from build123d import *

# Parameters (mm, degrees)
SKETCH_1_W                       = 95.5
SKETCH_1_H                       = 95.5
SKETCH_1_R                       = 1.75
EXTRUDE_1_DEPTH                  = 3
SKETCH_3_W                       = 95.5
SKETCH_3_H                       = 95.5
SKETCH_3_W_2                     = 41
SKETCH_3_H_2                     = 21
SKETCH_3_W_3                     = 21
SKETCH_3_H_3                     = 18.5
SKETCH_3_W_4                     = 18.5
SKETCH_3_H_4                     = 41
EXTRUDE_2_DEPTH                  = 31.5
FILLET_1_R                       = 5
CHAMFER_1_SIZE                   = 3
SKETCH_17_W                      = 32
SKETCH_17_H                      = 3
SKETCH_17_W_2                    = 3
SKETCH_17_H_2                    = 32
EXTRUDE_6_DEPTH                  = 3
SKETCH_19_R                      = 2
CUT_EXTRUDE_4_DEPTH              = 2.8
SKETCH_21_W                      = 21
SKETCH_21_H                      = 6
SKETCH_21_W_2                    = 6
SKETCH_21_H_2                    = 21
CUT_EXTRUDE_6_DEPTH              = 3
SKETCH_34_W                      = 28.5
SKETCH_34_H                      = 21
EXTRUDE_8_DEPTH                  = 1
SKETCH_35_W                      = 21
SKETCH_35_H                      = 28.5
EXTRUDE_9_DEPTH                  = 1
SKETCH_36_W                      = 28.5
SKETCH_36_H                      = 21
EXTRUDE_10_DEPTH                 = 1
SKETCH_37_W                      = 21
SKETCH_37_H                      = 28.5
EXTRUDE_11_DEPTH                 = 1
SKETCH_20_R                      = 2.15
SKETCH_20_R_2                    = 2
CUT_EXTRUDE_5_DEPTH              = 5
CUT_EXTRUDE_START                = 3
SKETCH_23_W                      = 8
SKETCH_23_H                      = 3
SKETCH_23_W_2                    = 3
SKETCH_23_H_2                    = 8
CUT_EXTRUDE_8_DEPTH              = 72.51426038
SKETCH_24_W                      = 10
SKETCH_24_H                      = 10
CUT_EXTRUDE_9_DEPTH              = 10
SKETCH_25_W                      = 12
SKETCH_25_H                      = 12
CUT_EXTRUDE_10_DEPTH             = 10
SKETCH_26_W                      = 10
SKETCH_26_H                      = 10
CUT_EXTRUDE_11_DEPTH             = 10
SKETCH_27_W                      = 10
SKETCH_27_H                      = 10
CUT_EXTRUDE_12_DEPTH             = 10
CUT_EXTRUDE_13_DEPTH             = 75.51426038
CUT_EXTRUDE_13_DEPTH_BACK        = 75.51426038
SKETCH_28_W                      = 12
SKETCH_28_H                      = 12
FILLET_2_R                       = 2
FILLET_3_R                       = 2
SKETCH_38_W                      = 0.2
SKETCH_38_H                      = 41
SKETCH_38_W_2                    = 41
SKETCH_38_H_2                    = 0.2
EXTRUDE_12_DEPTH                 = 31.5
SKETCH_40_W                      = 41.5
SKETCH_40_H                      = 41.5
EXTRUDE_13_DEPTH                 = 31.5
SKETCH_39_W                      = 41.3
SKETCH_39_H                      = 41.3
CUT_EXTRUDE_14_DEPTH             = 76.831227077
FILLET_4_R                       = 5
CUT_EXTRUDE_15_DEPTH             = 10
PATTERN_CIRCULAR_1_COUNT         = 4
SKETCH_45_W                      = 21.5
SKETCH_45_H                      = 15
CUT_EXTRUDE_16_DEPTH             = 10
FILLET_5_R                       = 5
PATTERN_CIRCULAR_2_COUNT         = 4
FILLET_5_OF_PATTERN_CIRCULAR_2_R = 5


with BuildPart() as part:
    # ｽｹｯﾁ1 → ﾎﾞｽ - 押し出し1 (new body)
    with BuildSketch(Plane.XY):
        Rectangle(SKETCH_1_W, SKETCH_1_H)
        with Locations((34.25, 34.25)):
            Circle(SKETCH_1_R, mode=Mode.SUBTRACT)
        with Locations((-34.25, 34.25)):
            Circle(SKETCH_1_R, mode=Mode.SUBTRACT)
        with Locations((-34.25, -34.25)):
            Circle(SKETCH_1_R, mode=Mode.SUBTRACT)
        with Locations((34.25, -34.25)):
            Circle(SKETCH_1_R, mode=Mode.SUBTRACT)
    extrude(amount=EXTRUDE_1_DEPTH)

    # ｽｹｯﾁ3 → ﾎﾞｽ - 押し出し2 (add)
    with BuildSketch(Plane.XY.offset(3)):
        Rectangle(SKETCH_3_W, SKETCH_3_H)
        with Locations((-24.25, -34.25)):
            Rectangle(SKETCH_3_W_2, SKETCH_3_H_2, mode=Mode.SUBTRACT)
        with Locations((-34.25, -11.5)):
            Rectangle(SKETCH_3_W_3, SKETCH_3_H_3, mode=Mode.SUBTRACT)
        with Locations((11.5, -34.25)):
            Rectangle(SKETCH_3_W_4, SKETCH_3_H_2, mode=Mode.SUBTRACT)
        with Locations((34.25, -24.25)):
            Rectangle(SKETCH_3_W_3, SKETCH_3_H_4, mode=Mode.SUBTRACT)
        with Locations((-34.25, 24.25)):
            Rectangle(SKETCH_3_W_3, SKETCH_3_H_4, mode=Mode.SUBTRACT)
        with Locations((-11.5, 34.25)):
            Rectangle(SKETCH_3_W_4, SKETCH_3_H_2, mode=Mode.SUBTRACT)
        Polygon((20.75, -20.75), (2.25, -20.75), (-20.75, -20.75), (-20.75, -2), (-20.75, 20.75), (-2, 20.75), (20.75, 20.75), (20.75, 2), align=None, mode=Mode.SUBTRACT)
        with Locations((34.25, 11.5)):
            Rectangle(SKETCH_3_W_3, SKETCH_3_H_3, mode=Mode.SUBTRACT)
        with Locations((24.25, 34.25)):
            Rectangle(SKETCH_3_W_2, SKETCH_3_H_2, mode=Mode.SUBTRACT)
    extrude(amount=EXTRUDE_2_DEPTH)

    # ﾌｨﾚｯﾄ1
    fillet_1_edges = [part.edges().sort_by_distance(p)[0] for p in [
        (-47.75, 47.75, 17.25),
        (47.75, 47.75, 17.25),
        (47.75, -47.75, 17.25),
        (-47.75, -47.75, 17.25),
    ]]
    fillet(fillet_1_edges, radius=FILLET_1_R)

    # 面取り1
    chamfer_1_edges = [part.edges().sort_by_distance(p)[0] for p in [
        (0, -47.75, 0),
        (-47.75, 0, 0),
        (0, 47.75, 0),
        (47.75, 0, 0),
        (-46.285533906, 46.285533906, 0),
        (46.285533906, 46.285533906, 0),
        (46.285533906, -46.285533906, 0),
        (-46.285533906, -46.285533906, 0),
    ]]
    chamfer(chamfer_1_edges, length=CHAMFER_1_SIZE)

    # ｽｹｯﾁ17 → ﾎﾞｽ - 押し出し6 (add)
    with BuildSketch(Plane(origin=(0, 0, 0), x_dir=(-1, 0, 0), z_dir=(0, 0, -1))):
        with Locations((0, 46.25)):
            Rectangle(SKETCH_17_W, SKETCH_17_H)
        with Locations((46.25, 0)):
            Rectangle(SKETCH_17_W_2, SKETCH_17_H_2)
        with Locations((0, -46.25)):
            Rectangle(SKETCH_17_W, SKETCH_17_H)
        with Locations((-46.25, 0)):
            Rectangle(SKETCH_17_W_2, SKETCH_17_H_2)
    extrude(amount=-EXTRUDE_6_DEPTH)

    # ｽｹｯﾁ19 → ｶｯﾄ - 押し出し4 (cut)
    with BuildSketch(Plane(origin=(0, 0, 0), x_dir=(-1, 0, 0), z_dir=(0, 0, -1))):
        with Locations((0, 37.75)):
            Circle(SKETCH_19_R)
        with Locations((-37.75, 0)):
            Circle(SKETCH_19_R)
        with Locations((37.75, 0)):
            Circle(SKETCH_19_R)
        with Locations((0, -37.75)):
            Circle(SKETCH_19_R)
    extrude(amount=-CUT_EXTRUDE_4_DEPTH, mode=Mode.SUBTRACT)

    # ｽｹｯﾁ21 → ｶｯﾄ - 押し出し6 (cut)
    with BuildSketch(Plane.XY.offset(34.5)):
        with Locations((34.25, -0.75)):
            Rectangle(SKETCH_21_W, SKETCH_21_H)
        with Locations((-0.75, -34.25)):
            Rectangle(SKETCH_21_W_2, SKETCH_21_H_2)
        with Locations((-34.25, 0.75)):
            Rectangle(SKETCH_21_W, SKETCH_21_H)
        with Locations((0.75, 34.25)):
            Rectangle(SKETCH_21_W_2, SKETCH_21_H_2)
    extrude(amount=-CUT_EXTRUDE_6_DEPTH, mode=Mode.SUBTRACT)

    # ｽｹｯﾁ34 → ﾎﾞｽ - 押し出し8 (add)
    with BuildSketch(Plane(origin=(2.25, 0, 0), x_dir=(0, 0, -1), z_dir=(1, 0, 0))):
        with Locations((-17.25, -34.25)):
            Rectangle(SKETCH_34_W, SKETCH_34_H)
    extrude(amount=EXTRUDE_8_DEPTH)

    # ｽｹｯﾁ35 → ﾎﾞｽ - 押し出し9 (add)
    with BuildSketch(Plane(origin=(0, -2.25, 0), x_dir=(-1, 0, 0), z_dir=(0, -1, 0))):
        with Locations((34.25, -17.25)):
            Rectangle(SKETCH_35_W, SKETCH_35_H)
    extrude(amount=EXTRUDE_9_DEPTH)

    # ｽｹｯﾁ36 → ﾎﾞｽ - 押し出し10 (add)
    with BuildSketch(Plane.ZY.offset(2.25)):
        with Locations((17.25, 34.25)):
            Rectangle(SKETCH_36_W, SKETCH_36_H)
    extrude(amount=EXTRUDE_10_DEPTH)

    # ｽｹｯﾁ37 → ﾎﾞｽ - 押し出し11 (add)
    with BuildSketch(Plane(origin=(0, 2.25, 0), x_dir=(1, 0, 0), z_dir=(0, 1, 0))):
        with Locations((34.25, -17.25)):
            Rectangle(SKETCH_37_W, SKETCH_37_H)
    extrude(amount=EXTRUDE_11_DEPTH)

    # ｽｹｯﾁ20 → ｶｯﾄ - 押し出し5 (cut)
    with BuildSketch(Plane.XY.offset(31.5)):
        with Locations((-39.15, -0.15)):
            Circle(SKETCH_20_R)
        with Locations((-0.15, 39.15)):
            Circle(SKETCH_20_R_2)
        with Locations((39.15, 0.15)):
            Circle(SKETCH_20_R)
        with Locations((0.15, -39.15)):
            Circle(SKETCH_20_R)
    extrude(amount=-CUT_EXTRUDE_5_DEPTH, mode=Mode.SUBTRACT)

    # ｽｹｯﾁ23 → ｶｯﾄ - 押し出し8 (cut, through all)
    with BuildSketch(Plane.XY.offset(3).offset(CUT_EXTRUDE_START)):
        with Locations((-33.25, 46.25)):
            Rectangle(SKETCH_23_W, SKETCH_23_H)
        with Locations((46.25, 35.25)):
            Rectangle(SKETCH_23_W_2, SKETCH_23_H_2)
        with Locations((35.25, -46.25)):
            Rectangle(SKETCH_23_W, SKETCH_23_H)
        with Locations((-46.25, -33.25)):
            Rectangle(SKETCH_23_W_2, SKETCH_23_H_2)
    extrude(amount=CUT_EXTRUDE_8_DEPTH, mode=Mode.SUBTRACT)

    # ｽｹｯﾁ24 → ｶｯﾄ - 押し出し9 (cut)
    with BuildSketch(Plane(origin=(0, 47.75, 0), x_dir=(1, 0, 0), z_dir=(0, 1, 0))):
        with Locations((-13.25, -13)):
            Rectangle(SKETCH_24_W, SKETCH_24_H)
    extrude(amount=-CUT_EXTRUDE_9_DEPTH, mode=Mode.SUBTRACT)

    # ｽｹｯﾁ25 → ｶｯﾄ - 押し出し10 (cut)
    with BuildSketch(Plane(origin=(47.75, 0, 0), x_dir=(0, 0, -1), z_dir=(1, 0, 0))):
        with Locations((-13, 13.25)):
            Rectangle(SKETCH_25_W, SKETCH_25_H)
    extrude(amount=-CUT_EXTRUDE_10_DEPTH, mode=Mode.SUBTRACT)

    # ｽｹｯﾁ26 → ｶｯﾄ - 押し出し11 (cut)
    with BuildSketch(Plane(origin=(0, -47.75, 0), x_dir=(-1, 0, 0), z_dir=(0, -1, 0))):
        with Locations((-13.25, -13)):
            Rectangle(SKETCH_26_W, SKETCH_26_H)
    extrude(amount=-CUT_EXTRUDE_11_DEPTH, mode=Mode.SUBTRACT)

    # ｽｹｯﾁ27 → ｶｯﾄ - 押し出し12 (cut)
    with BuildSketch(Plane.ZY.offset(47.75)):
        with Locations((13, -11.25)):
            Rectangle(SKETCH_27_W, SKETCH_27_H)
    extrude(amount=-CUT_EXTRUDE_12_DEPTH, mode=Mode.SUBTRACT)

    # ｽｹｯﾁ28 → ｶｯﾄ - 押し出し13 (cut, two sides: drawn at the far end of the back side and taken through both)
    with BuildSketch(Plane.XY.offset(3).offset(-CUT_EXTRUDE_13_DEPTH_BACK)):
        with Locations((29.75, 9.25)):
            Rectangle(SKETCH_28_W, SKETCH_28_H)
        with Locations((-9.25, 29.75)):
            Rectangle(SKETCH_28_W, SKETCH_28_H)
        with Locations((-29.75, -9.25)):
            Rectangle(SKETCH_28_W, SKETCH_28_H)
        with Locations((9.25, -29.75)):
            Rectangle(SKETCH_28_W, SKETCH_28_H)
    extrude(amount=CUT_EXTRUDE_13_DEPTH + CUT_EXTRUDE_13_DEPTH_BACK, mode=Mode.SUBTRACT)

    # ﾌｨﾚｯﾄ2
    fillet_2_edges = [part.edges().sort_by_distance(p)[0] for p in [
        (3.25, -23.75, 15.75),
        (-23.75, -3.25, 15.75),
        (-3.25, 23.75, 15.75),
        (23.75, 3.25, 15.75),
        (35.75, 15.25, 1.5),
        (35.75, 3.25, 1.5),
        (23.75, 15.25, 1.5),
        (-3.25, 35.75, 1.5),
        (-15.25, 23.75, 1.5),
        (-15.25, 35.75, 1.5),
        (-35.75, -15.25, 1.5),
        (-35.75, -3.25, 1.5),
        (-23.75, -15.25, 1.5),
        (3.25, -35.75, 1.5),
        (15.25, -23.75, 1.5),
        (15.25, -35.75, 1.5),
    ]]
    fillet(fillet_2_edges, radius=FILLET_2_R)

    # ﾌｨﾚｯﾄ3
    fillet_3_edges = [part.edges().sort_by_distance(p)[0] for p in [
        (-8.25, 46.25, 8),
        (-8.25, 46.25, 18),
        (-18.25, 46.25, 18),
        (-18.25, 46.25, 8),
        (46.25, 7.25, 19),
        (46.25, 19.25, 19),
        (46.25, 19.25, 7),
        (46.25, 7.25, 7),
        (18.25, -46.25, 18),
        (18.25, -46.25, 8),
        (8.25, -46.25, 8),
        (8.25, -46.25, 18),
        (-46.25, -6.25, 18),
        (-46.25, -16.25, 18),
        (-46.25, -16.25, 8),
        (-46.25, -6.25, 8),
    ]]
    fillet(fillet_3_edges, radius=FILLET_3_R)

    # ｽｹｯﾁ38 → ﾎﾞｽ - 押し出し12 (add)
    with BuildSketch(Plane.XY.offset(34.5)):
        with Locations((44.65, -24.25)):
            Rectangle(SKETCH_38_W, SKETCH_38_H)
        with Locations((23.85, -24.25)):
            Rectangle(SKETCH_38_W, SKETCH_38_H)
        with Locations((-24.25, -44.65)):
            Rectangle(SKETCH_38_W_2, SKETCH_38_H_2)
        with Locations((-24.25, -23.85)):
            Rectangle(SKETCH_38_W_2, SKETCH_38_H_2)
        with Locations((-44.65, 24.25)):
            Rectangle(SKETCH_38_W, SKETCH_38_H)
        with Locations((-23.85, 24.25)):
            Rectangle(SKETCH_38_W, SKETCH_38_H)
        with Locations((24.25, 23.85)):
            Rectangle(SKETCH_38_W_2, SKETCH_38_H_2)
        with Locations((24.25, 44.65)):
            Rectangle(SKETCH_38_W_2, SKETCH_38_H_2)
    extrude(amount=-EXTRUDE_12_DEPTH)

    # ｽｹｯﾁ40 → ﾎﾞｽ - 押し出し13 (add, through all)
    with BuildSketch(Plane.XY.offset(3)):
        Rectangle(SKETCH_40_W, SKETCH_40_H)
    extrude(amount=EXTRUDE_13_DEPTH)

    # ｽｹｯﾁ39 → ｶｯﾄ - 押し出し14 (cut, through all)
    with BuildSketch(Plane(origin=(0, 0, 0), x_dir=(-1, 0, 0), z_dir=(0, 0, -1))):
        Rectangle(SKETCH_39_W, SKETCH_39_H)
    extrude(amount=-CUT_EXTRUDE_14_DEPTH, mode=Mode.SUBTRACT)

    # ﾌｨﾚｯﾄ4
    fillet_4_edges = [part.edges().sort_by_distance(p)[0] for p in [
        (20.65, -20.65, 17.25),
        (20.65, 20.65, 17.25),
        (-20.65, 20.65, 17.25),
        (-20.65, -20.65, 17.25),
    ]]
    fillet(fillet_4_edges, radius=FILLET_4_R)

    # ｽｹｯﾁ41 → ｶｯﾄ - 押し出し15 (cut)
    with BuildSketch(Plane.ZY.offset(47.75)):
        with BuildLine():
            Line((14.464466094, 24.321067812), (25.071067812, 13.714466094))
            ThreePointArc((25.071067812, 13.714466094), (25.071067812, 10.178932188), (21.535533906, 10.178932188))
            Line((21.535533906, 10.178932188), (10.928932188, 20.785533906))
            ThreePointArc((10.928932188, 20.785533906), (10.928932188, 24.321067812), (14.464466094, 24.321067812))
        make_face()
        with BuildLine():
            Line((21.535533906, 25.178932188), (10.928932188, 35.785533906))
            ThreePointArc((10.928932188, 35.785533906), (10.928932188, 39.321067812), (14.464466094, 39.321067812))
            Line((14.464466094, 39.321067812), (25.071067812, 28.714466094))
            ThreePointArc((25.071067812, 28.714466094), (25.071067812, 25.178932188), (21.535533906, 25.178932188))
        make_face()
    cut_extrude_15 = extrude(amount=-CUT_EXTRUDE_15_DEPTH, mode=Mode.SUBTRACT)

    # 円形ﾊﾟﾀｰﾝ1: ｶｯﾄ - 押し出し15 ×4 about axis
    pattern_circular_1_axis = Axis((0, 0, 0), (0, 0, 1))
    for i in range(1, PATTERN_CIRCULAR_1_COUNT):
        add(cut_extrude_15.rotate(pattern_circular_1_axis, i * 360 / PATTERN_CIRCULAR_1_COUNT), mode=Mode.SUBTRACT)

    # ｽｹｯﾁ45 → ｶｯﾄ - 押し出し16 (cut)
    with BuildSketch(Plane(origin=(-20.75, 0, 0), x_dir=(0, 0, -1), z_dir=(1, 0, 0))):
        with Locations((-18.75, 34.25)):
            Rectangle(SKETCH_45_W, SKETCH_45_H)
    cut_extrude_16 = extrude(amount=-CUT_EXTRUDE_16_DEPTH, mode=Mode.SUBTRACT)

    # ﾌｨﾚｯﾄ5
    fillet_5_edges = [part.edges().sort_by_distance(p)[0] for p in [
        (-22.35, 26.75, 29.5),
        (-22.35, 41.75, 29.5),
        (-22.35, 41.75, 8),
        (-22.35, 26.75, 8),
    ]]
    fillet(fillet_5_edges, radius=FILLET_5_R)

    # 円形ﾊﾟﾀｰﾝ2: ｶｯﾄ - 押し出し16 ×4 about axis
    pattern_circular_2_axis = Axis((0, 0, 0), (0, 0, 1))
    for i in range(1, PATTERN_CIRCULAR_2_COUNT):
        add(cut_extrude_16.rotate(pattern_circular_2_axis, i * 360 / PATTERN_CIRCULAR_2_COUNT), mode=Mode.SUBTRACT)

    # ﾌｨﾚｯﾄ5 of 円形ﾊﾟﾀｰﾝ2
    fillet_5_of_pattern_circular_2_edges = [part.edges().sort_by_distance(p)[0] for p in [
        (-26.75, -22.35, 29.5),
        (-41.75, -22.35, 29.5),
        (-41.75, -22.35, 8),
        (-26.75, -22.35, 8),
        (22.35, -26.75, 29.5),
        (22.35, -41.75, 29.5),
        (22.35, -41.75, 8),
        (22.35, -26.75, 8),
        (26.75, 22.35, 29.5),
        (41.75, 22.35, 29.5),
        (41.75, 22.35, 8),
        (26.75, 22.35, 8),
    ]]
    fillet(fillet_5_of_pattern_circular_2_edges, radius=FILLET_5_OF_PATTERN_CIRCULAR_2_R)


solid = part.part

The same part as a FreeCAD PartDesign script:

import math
import FreeCAD as App
import Part
import Sketcher

V = App.Vector
Q = App.Units.Quantity


def edges_at(feature, points):
    """Names of the edges that pass closest to the given points."""
    edges = feature.Shape.Edges
    near = lambda p: min(range(len(edges)), key=lambda i: edges[i].distToShape(Part.Vertex(*p))[0])
    return sorted({f"Edge{near(p) + 1}" for p in points})


def add_polygon(sketch, points):
    """Adds a closed chain of lines whose ends are joined by coincident constraints."""
    first, n = sketch.GeometryCount, len(points)
    for a, b in zip(points, points[1:] + points[:1]):
        sketch.addGeometry(Part.LineSegment(App.Vector(*a, 0), App.Vector(*b, 0)), False)
    for i in range(n):
        sketch.addConstraint(Sketcher.Constraint("Coincident", first + i, 2, first + (i + 1) % n, 1))

doc = App.newDocument("Part")
body = doc.addObject("PartDesign::Body", "Body")

sketch1 = body.newObject("Sketcher::SketchObject", "Sketch")
sketch1.AttachmentSupport = (doc.getObject("XY_Plane"), [""])
sketch1.MapMode = "FlatFace"
add_polygon(sketch1, [(-47.8, 47.8), (-47.8, -47.8), (47.8, -47.8), (47.8, 47.8)])
sketch1.addGeometry(Part.Circle(V(-34.2, -34.2, 0), V(0, 0, 1), 1.8), False)
sketch1.addGeometry(Part.Circle(V(34.2, -34.2, 0), V(0, 0, 1), 1.8), False)
sketch1.addGeometry(Part.Circle(V(-34.2, 34.2, 0), V(0, 0, 1), 1.8), False)
sketch1.addGeometry(Part.Circle(V(34.2, 34.2, 0), V(0, 0, 1), 1.8), False)
sketch1.addConstraint([
    Sketcher.Constraint("Vertical", 0),
    Sketcher.Constraint("Horizontal", 1),
    Sketcher.Constraint("Vertical", 2),
    Sketcher.Constraint("Horizontal", 3),
    Sketcher.Constraint("Equal", 4, 5),
    Sketcher.Constraint("Equal", 5, 6),
    Sketcher.Constraint("Equal", 6, 7),
    Sketcher.Constraint("Symmetric", 5, 3, 6, 3, -1, 1),
    Sketcher.Constraint("Symmetric", 4, 3, 7, 3, -1, 1),
    Sketcher.Constraint("Symmetric", 0, 2, 2, 2, -1, 1),
    Sketcher.Constraint("Symmetric", 4, 3, 5, 3, -2),
    Sketcher.Constraint("Equal", 3, 0),
    Sketcher.Constraint("Diameter", 4, 3.5),
    Sketcher.Constraint("DistanceX", 1, 1, 1, 2, 95.5),
    Sketcher.Constraint("DistanceX", 0, 2, 5, 3, 82.0),
    Sketcher.Constraint("DistanceY", 0, 2, 6, 3, 82.0),
])
pad1 = body.newObject("PartDesign::Pad", "Pad")
pad1.Profile = sketch1
pad1.Length = 3

sketch2 = body.newObject("Sketcher::SketchObject", "Sketch001")
sketch2.AttachmentSupport = (doc.getObject("XY_Plane"), [""])
sketch2.MapMode = "FlatFace"
sketch2.AttachmentOffset = App.Placement(V(0, 0, 3), App.Rotation())
add_polygon(sketch2, [(-48, 48), (-48, -48), (48, -48), (48, 48)])
add_polygon(sketch2, [(-4, -45), (-45, -45), (-45, -24), (-4, -24)])
add_polygon(sketch2, [(-24, -21), (-45, -21), (-45, -2), (-24, -2)])
add_polygon(sketch2, [(21, -45), (2, -45), (2, -24), (21, -24)])
add_polygon(sketch2, [(45, -45), (24, -45), (24, -4), (45, -4)])
add_polygon(sketch2, [(-24, 4), (-45, 4), (-45, 45), (-24, 45)])
add_polygon(sketch2, [(-2, 24), (-21, 24), (-21, 45), (-2, 45)])
add_polygon(sketch2, [(21, 21), (21, -21), (-21, -21), (-21, 21)])
add_polygon(sketch2, [(45, 2), (24, 2), (24, 21), (45, 21)])
add_polygon(sketch2, [(45, 24), (4, 24), (4, 45), (45, 45)])
sketch2.addConstraint([
    Sketcher.Constraint("Vertical", 0),
    Sketcher.Constraint("Horizontal", 1),
    Sketcher.Constraint("Vertical", 2),
    Sketcher.Constraint("Horizontal", 3),
    Sketcher.Constraint("Horizontal", 4),
    Sketcher.Constraint("Vertical", 5),
    Sketcher.Constraint("Horizontal", 6),
    Sketcher.Constraint("Vertical", 7),
    Sketcher.Constraint("Horizontal", 8),
    Sketcher.Constraint("Vertical", 9),
    Sketcher.Constraint("Horizontal", 10),
    Sketcher.Constraint("Vertical", 11),
    Sketcher.Constraint("Horizontal", 12),
    Sketcher.Constraint("Vertical", 13),
    Sketcher.Constraint("Horizontal", 14),
    Sketcher.Constraint("Vertical", 15),
    Sketcher.Constraint("Horizontal", 16),
    Sketcher.Constraint("Vertical", 17),
    Sketcher.Constraint("Horizontal", 18),
    Sketcher.Constraint("Vertical", 19),
    Sketcher.Constraint("Horizontal", 20),
    Sketcher.Constraint("Vertical", 21),
    Sketcher.Constraint("Horizontal", 22),
    Sketcher.Constraint("Vertical", 23),
    Sketcher.Constraint("Horizontal", 24),
    Sketcher.Constraint("Vertical", 25),
    Sketcher.Constraint("Horizontal", 26),
    Sketcher.Constraint("Vertical", 27),
    Sketcher.Constraint("Vertical", 28),
    Sketcher.Constraint("Horizontal", 29),
    Sketcher.Constraint("Vertical", 30),
    Sketcher.Constraint("Horizontal", 31),
    Sketcher.Constraint("Horizontal", 32),
    Sketcher.Constraint("Vertical", 33),
    Sketcher.Constraint("Horizontal", 34),
    Sketcher.Constraint("Vertical", 35),
    Sketcher.Constraint("Horizontal", 36),
    Sketcher.Constraint("Vertical", 37),
    Sketcher.Constraint("Horizontal", 38),
    Sketcher.Constraint("Vertical", 39),
    Sketcher.Constraint("Symmetric", 0, 2, 2, 2, -1, 1),
    Sketcher.Constraint("Symmetric", 18, 2, 20, 2, -1, 1),
    Sketcher.Constraint("Symmetric", 16, 2, 22, 2, -1, 1),
    Sketcher.Constraint("Symmetric", 14, 2, 24, 2, -1, 1),
    Sketcher.Constraint("Symmetric", 12, 2, 26, 2, -1, 1),
    Sketcher.Constraint("Symmetric", 28, 2, 30, 2, -1, 1),
    Sketcher.Constraint("Symmetric", 10, 2, 32, 2, -1, 1),
    Sketcher.Constraint("Symmetric", 8, 2, 34, 2, -1, 1),
    Sketcher.Constraint("Symmetric", 6, 2, 36, 2, -1, 1),
    Sketcher.Constraint("Symmetric", 4, 2, 38, 2, -1, 1),
    Sketcher.Constraint("Symmetric", 4, 2, 19, 2, -2),
    Sketcher.Constraint("Horizontal", 7, 2, 12, 2),
    Sketcher.Constraint("Horizontal", 6, 2, 13, 2),
    Sketcher.Constraint("Horizontal", 11, 2, 28, 2),
    Sketcher.Constraint("Vertical", 5, 2, 8, 2),
    Sketcher.Constraint("Vertical", 11, 2, 22, 2),
    Sketcher.Constraint("Vertical", 15, 2, 28, 2),
    Sketcher.Constraint("Equal", 3, 0),
    Sketcher.Constraint("Equal", 34, 5),
    Sketcher.Constraint("Equal", 26, 9),
    Sketcher.Constraint("Equal", 38, 17),
    Sketcher.Constraint("Equal", 31, 28),
    Sketcher.Constraint("DistanceX", 4, 2, 4, 1, 41.0),
    Sketcher.Constraint("DistanceX", 8, 2, 8, 1, 21.0),
    Sketcher.Constraint("DistanceX", 1, 1, 1, 2, 95.5),
    Sketcher.Constraint("DistanceX", 12, 2, 12, 1, 18.5),
    Sketcher.Constraint("DistanceX", 29, 2, 29, 1, 41.5),
    Sketcher.Constraint("DistanceX", 0, 2, 4, 2, 3.0),
    Sketcher.Constraint("DistanceY", 0, 2, 4, 2, 3.0),
])
pad2 = body.newObject("PartDesign::Pad", "Pad001")
pad2.Profile = sketch2
pad2.Length = 31.5
doc.recompute()

fillet = body.newObject("PartDesign::Fillet", "Fillet")
fillet.Base = (pad2, edges_at(pad2, [
    (-47.75, 47.75, 17.25),
    (47.75, 47.75, 17.25),
    (47.75, -47.75, 17.25),
    (-47.75, -47.75, 17.25),
]))
fillet.Radius = 5
doc.recompute()

chamfer = body.newObject("PartDesign::Chamfer", "Chamfer")
chamfer.Base = (fillet, edges_at(fillet, [
    (0, -47.75, 0),
    (-47.75, 0, 0),
    (0, 47.75, 0),
    (47.75, 0, 0),
    (-46.286, 46.286, 0),
    (46.286, 46.286, 0),
    (46.286, -46.286, 0),
    (-46.286, -46.286, 0),
]))
chamfer.Size = 3

sketch3 = body.newObject("Sketcher::SketchObject", "Sketch002")
sketch3.AttachmentSupport = (doc.getObject("XY_Plane"), [""])
sketch3.MapMode = "FlatFace"
add_polygon(sketch3, [(16, 47.8), (16, 44.8), (-16, 44.8), (-16, 47.8)])
add_polygon(sketch3, [(-44.8, 16), (-44.8, -16), (-47.8, -16), (-47.8, 16)])
add_polygon(sketch3, [(16, -44.8), (16, -47.8), (-16, -47.8), (-16, -44.8)])
add_polygon(sketch3, [(47.8, 16), (47.8, -16), (44.8, -16), (44.8, 16)])
sketch3.addConstraint([
    Sketcher.Constraint("Vertical", 0),
    Sketcher.Constraint("Horizontal", 1),
    Sketcher.Constraint("Vertical", 2),
    Sketcher.Constraint("Horizontal", 3),
    Sketcher.Constraint("Vertical", 4),
    Sketcher.Constraint("Horizontal", 5),
    Sketcher.Constraint("Vertical", 6),
    Sketcher.Constraint("Horizontal", 7),
    Sketcher.Constraint("Vertical", 8),
    Sketcher.Constraint("Horizontal", 9),
    Sketcher.Constraint("Vertical", 10),
    Sketcher.Constraint("Horizontal", 11),
    Sketcher.Constraint("Vertical", 12),
    Sketcher.Constraint("Horizontal", 13),
    Sketcher.Constraint("Vertical", 14),
    Sketcher.Constraint("Horizontal", 15),
    Sketcher.Constraint("Symmetric", 2, 2, 8, 2, -1, 1),
    Sketcher.Constraint("Symmetric", 0, 2, 10, 2, -1, 1),
    Sketcher.Constraint("Symmetric", 6, 2, 12, 2, -1, 1),
    Sketcher.Constraint("Symmetric", 4, 2, 14, 2, -1, 1),
    Sketcher.Constraint("Horizontal", 5, 2, 12, 2),
    Sketcher.Constraint("Vertical", 3, 2, 8, 2),
    Sketcher.Constraint("Equal", 15, 0),
    Sketcher.Constraint("Equal", 11, 4),
    Sketcher.Constraint("DistanceX", 1, 2, 1, 1, 32.0),
    Sketcher.Constraint("DistanceX", 5, 2, 5, 1, 3.0),
    Sketcher.Constraint("DistanceY", 8, 2, 0, 2, 92.5),
    Sketcher.Constraint("DistanceX", 4, 2, -1, 1, 44.75),
])
pad3 = body.newObject("PartDesign::Pad", "Pad002")
pad3.Profile = sketch3
pad3.Length = 3

sketch4 = body.newObject("Sketcher::SketchObject", "Sketch003")
sketch4.AttachmentSupport = (doc.getObject("XY_Plane"), [""])
sketch4.MapMode = "FlatFace"
sketch4.addGeometry([
    Part.Circle(V(0, 37.8, 0), V(0, 0, 1), 2),
    Part.Circle(V(37.8, 0, 0), V(0, 0, 1), 2),
    Part.Circle(V(-37.8, 0, 0), V(0, 0, 1), 2),
    Part.Circle(V(0, -37.8, 0), V(0, 0, 1), 2),
], False)
sketch4.addConstraint([
    Sketcher.Constraint("Equal", 0, 1),
    Sketcher.Constraint("Equal", 1, 2),
    Sketcher.Constraint("Equal", 2, 3),
    Sketcher.Constraint("Symmetric", 1, 3, 2, 3, -1, 1),
    Sketcher.Constraint("Symmetric", 0, 3, 3, 3, -1, 1),
    Sketcher.Constraint("PointOnObject", 0, 3, -2),
    Sketcher.Constraint("PointOnObject", 1, 3, -1),
    Sketcher.Constraint("Diameter", 0, 4.0),
    Sketcher.Constraint("DistanceX", 2, 3, 1, 3, 75.5),
    Sketcher.Constraint("DistanceY", 3, 3, 0, 3, 75.5),
])
pocket1 = body.newObject("PartDesign::Pocket", "Pocket")
pocket1.Profile = sketch4
pocket1.Length = 2.8
pocket1.Reversed = True

sketch5 = body.newObject("Sketcher::SketchObject", "Sketch004")
sketch5.AttachmentSupport = (doc.getObject("XY_Plane"), [""])
sketch5.MapMode = "FlatFace"
sketch5.AttachmentOffset = App.Placement(V(0, 0, 34.5), App.Rotation())
add_polygon(sketch5, [(24, 2), (24, -4), (45, -4), (45, 2)])
add_polygon(sketch5, [(-4, -24), (-4, -45), (2, -45), (2, -24)])
add_polygon(sketch5, [(-45, 4), (-45, -2), (-24, -2), (-24, 4)])
add_polygon(sketch5, [(-2, 45), (-2, 24), (4, 24), (4, 45)])
sketch5.addConstraint([
    Sketcher.Constraint("Vertical", 0),
    Sketcher.Constraint("Horizontal", 1),
    Sketcher.Constraint("Vertical", 2),
    Sketcher.Constraint("Horizontal", 3),
    Sketcher.Constraint("Vertical", 4),
    Sketcher.Constraint("Horizontal", 5),
    Sketcher.Constraint("Vertical", 6),
    Sketcher.Constraint("Horizontal", 7),
    Sketcher.Constraint("Vertical", 8),
    Sketcher.Constraint("Horizontal", 9),
    Sketcher.Constraint("Vertical", 10),
    Sketcher.Constraint("Horizontal", 11),
    Sketcher.Constraint("Vertical", 12),
    Sketcher.Constraint("Horizontal", 13),
    Sketcher.Constraint("Vertical", 14),
    Sketcher.Constraint("Horizontal", 15),
    Sketcher.Constraint("Symmetric", 2, 2, 8, 2, -1, 1),
    Sketcher.Constraint("Symmetric", 0, 2, 10, 2, -1, 1),
    Sketcher.Constraint("Symmetric", 6, 2, 12, 2, -1, 1),
    Sketcher.Constraint("Symmetric", 4, 2, 14, 2, -1, 1),
    Sketcher.Constraint("Equal", 15, 0),
    Sketcher.Constraint("Equal", 11, 4),
    Sketcher.Constraint("DistanceX", 1, 1, 1, 2, 21.0),
    Sketcher.Constraint("DistanceX", 5, 1, 5, 2, 6.0),
    Sketcher.Constraint("DistanceY", 4, 2, 0, 2, 41.0),
    Sketcher.Constraint("DistanceX", 8, 2, 7, 2, 41.0),
    Sketcher.Constraint("DistanceX", 4, 2, 0, 2, 27.5),
    Sketcher.Constraint("DistanceY", 7, 2, 8, 2, 21.5),
])
pocket2 = body.newObject("PartDesign::Pocket", "Pocket001")
pocket2.Profile = sketch5
pocket2.Length = 3

sketch6 = body.newObject("Sketcher::SketchObject", "Sketch005")
sketch6.AttachmentSupport = (doc.getObject("YZ_Plane"), [""])
sketch6.MapMode = "FlatFace"
sketch6.AttachmentOffset = App.Placement(V(0, 0, 2.25), App.Rotation())
add_polygon(sketch6, [(-24, 32), (-45, 32), (-45, 3), (-24, 3)])
sketch6.addConstraint([
    Sketcher.Constraint("Horizontal", 0),
    Sketcher.Constraint("Vertical", 1),
    Sketcher.Constraint("Horizontal", 2),
    Sketcher.Constraint("Vertical", 3),
    Sketcher.Constraint("DistanceX", 0, 2, 0, 1, 21.0),
    Sketcher.Constraint("DistanceY", 1, 2, 1, 1, 28.5),
    Sketcher.Constraint("DistanceY", -1, 1, 1, 2, 3.0),
    Sketcher.Constraint("DistanceX", 0, 2, -1, 1, 44.75),
])
pad4 = body.newObject("PartDesign::Pad", "Pad003")
pad4.Profile = sketch6
pad4.Length = 1

sketch7 = body.newObject("Sketcher::SketchObject", "Sketch006")
sketch7.AttachmentSupport = (doc.getObject("XZ_Plane"), [""])
sketch7.MapMode = "FlatFace"
sketch7.AttachmentOffset = App.Placement(V(0, 0, 2.25), App.Rotation())
add_polygon(sketch7, [(-24, 3), (-24, 32), (-45, 32), (-45, 3)])
sketch7.addConstraint([
    Sketcher.Constraint("Vertical", 0),
    Sketcher.Constraint("Horizontal", 1),
    Sketcher.Constraint("Vertical", 2),
    Sketcher.Constraint("Horizontal", 3),
    Sketcher.Constraint("DistanceX", 1, 2, 1, 1, 21.0),
    Sketcher.Constraint("DistanceY", 0, 1, 0, 2, 28.5),
    Sketcher.Constraint("DistanceY", -1, 1, 2, 2, 3.0),
    Sketcher.Constraint("DistanceX", 0, 2, -1, 1, 23.75),
])
pad5 = body.newObject("PartDesign::Pad", "Pad004")
pad5.Profile = sketch7
pad5.Length = 1

sketch8 = body.newObject("Sketcher::SketchObject", "Sketch007")
sketch8.AttachmentSupport = (doc.getObject("YZ_Plane"), [""])
sketch8.MapMode = "FlatFace"
sketch8.AttachmentOffset = App.Placement(V(0, 0, -2.25), App.Rotation())
add_polygon(sketch8, [(45, 3), (24, 3), (24, 32), (45, 32)])
sketch8.addConstraint([
    Sketcher.Constraint("Horizontal", 0),
    Sketcher.Constraint("Vertical", 1),
    Sketcher.Constraint("Horizontal", 2),
    Sketcher.Constraint("Vertical", 3),
    Sketcher.Constraint("DistanceX", 0, 2, 0, 1, 21.0),
    Sketcher.Constraint("DistanceY", 1, 1, 1, 2, 28.5),
    Sketcher.Constraint("DistanceY", -1, 1, 0, 2, 3.0),
    Sketcher.Constraint("DistanceX", -1, 1, 0, 2, 23.75),
])
pad6 = body.newObject("PartDesign::Pad", "Pad005")
pad6.Profile = sketch8
pad6.Length = 1
pad6.Reversed = True

sketch9 = body.newObject("Sketcher::SketchObject", "Sketch008")
sketch9.AttachmentSupport = (doc.getObject("XZ_Plane"), [""])
sketch9.MapMode = "FlatFace"
sketch9.AttachmentOffset = App.Placement(V(0, 0, -2.25), App.Rotation())
add_polygon(sketch9, [(24, 3), (24, 32), (45, 32), (45, 3)])
sketch9.addConstraint([
    Sketcher.Constraint("Vertical", 0),
    Sketcher.Constraint("Horizontal", 1),
    Sketcher.Constraint("Vertical", 2),
    Sketcher.Constraint("Horizontal", 3),
    Sketcher.Constraint("DistanceX", 1, 1, 1, 2, 21.0),
    Sketcher.Constraint("DistanceY", 0, 1, 0, 2, 28.5),
    Sketcher.Constraint("DistanceY", -1, 1, 2, 2, 3.0),
    Sketcher.Constraint("DistanceX", -1, 1, 0, 2, 23.75),
])
pad7 = body.newObject("PartDesign::Pad", "Pad006")
pad7.Profile = sketch9
pad7.Length = 1
pad7.Reversed = True

sketch10 = body.newObject("Sketcher::SketchObject", "Sketch009")
sketch10.AttachmentSupport = (doc.getObject("XY_Plane"), [""])
sketch10.MapMode = "FlatFace"
sketch10.AttachmentOffset = App.Placement(V(0, 0, 31.5), App.Rotation())
sketch10.addGeometry([
    Part.Circle(V(-39.1, -0.1, 0), V(0, 0, 1), 2.1),
    Part.Circle(V(-0.1, 39.1, 0), V(0, 0, 1), 2),
    Part.Circle(V(39.1, 0.1, 0), V(0, 0, 1), 2.1),
    Part.Circle(V(0.1, -39.1, 0), V(0, 0, 1), 2.1),
], False)
sketch10.addConstraint([
    Sketcher.Constraint("Equal", 0, 2),
    Sketcher.Constraint("Equal", 2, 3),
    Sketcher.Constraint("Symmetric", 0, 3, 2, 3, -1, 1),
    Sketcher.Constraint("Symmetric", 1, 3, 3, 3, -1, 1),
    Sketcher.Constraint("Diameter", 1, 4.0),
    Sketcher.Constraint("Diameter", 0, 4.3),
    Sketcher.Constraint("DistanceX", 0, 3, 1, 3, 39.0),
    Sketcher.Constraint("DistanceY", 2, 3, 1, 3, 39.0),
    Sketcher.Constraint("DistanceY", 0, 3, 1, 3, 39.3),
    Sketcher.Constraint("DistanceX", 1, 3, 2, 3, 39.3),
])
pocket3 = body.newObject("PartDesign::Pocket", "Pocket002")
pocket3.Profile = sketch10
pocket3.Length = 5

sketch11 = body.newObject("Sketcher::SketchObject", "Sketch010")
sketch11.AttachmentSupport = (doc.getObject("XY_Plane"), [""])
sketch11.MapMode = "FlatFace"
sketch11.AttachmentOffset = App.Placement(V(0, 0, 6), App.Rotation())
add_polygon(sketch11, [(-37.2, 47.8), (-37.2, 44.8), (-29.2, 44.8), (-29.2, 47.8)])
add_polygon(sketch11, [(44.8, 39.2), (44.8, 31.2), (47.8, 31.2), (47.8, 39.2)])
add_polygon(sketch11, [(31.2, -44.8), (31.2, -47.8), (39.2, -47.8), (39.2, -44.8)])
add_polygon(sketch11, [(-47.8, -29.2), (-47.8, -37.2), (-44.8, -37.2), (-44.8, -29.2)])
sketch11.addConstraint([
    Sketcher.Constraint("Vertical", 0),
    Sketcher.Constraint("Horizontal", 1),
    Sketcher.Constraint("Vertical", 2),
    Sketcher.Constraint("Horizontal", 3),
    Sketcher.Constraint("Vertical", 4),
    Sketcher.Constraint("Horizontal", 5),
    Sketcher.Constraint("Vertical", 6),
    Sketcher.Constraint("Horizontal", 7),
    Sketcher.Constraint("Vertical", 8),
    Sketcher.Constraint("Horizontal", 9),
    Sketcher.Constraint("Vertical", 10),
    Sketcher.Constraint("Horizontal", 11),
    Sketcher.Constraint("Vertical", 12),
    Sketcher.Constraint("Horizontal", 13),
    Sketcher.Constraint("Vertical", 14),
    Sketcher.Constraint("Horizontal", 15),
    Sketcher.Constraint("Equal", 3, 9),
    Sketcher.Constraint("Equal", 7, 13),
    Sketcher.Constraint("Equal", 15, 0),
    Sketcher.Constraint("Equal", 11, 4),
    Sketcher.Constraint("Equal", 2, 8),
    Sketcher.Constraint("Equal", 6, 12),
    Sketcher.Constraint("DistanceX", 1, 1, 1, 2, 8.0),
    Sketcher.Constraint("DistanceX", 5, 1, 5, 2, 3.0),
    Sketcher.Constraint("DistanceX", 1, 2, 4, 2, 74.0),
    Sketcher.Constraint("DistanceY", 8, 2, 4, 2, 79.0),
    Sketcher.Constraint("DistanceX", 12, 2, 11, 2, 79.0),
    Sketcher.Constraint("DistanceY", 12, 2, 0, 2, 82.0),
    Sketcher.Constraint("DistanceY", 4, 2, 1, 2, 13.5),
    Sketcher.Constraint("DistanceX", 8, 2, 4, 2, 13.5),
    Sketcher.Constraint("DistanceX", 0, 2, -1, 1, 37.25),
    Sketcher.Constraint("DistanceY", -1, 1, 0, 2, 44.75),
])
pocket4 = body.newObject("PartDesign::Pocket", "Pocket003")
pocket4.Profile = sketch11
pocket4.Type = "ThroughAll"
pocket4.Reversed = True

sketch12 = body.newObject("Sketcher::SketchObject", "Sketch011")
sketch12.AttachmentSupport = (doc.getObject("XZ_Plane"), [""])
sketch12.MapMode = "FlatFace"
sketch12.AttachmentOffset = App.Placement(V(0, 0, -47.75), App.Rotation())
add_polygon(sketch12, [(-18, 8), (-18, 18), (-8, 18), (-8, 8)])
sketch12.addConstraint([
    Sketcher.Constraint("Vertical", 0),
    Sketcher.Constraint("Horizontal", 1),
    Sketcher.Constraint("Vertical", 2),
    Sketcher.Constraint("Horizontal", 3),
    Sketcher.Constraint("Equal", 3, 0),
    Sketcher.Constraint("DistanceX", 1, 1, 1, 2, 10.0),
    Sketcher.Constraint("DistanceY", -1, 1, 0, 2, 18.0),
    Sketcher.Constraint("DistanceX", 0, 2, -1, 1, 18.25),
])
pocket5 = body.newObject("PartDesign::Pocket", "Pocket004")
pocket5.Profile = sketch12
pocket5.Length = 10
pocket5.Reversed = True

sketch13 = body.newObject("Sketcher::SketchObject", "Sketch012")
sketch13.AttachmentSupport = (doc.getObject("YZ_Plane"), [""])
sketch13.MapMode = "FlatFace"
sketch13.AttachmentOffset = App.Placement(V(0, 0, 47.75), App.Rotation())
add_polygon(sketch13, [(19, 19), (7, 19), (7, 7), (19, 7)])
sketch13.addConstraint([
    Sketcher.Constraint("Horizontal", 0),
    Sketcher.Constraint("Vertical", 1),
    Sketcher.Constraint("Horizontal", 2),
    Sketcher.Constraint("Vertical", 3),
    Sketcher.Constraint("Equal", 2, 1),
    Sketcher.Constraint("DistanceX", 0, 2, 0, 1, 12.0),
    Sketcher.Constraint("DistanceY", -1, 1, 0, 2, 19.0),
    Sketcher.Constraint("DistanceX", -1, 1, 0, 2, 7.25),
])
pocket6 = body.newObject("PartDesign::Pocket", "Pocket005")
pocket6.Profile = sketch13
pocket6.Length = 10

sketch14 = body.newObject("Sketcher::SketchObject", "Sketch013")
sketch14.AttachmentSupport = (doc.getObject("XZ_Plane"), [""])
sketch14.MapMode = "FlatFace"
sketch14.AttachmentOffset = App.Placement(V(0, 0, 47.75), App.Rotation())
add_polygon(sketch14, [(18, 8), (18, 18), (8, 18), (8, 8)])
sketch14.addConstraint([
    Sketcher.Constraint("Vertical", 0),
    Sketcher.Constraint("Horizontal", 1),
    Sketcher.Constraint("Vertical", 2),
    Sketcher.Constraint("Horizontal", 3),
    Sketcher.Constraint("Equal", 3, 0),
    Sketcher.Constraint("DistanceX", 1, 2, 1, 1, 10.0),
    Sketcher.Constraint("DistanceY", -1, 1, 0, 2, 18.0),
    Sketcher.Constraint("DistanceX", -1, 1, 0, 2, 18.25),
])
pocket7 = body.newObject("PartDesign::Pocket", "Pocket006")
pocket7.Profile = sketch14
pocket7.Length = 10

sketch15 = body.newObject("Sketcher::SketchObject", "Sketch014")
sketch15.AttachmentSupport = (doc.getObject("YZ_Plane"), [""])
sketch15.MapMode = "FlatFace"
sketch15.AttachmentOffset = App.Placement(V(0, 0, -47.75), App.Rotation())
add_polygon(sketch15, [(-6, 8), (-16, 8), (-16, 18), (-6, 18)])
sketch15.addConstraint([
    Sketcher.Constraint("Horizontal", 0),
    Sketcher.Constraint("Vertical", 1),
    Sketcher.Constraint("Horizontal", 2),
    Sketcher.Constraint("Vertical", 3),
    Sketcher.Constraint("Equal", 2, 1),
    Sketcher.Constraint("DistanceX", 0, 2, 0, 1, 10.0),
    Sketcher.Constraint("DistanceY", -1, 1, 0, 2, 8.0),
    Sketcher.Constraint("DistanceX", 0, 2, -1, 1, 16.25),
])
pocket8 = body.newObject("PartDesign::Pocket", "Pocket007")
pocket8.Profile = sketch15
pocket8.Length = 10
pocket8.Reversed = True

sketch16 = body.newObject("Sketcher::SketchObject", "Sketch015")
sketch16.AttachmentSupport = (doc.getObject("XY_Plane"), [""])
sketch16.MapMode = "FlatFace"
sketch16.AttachmentOffset = App.Placement(V(0, 0, 3), App.Rotation())
add_polygon(sketch16, [(24, 15), (24, 3), (36, 3), (36, 15)])
add_polygon(sketch16, [(-15, 36), (-15, 24), (-3, 24), (-3, 36)])
add_polygon(sketch16, [(-36, -3), (-36, -15), (-24, -15), (-24, -3)])
add_polygon(sketch16, [(3, -24), (3, -36), (15, -36), (15, -24)])
sketch16.addConstraint([
    Sketcher.Constraint("Vertical", 0),
    Sketcher.Constraint("Horizontal", 1),
    Sketcher.Constraint("Vertical", 2),
    Sketcher.Constraint("Horizontal", 3),
    Sketcher.Constraint("Vertical", 4),
    Sketcher.Constraint("Horizontal", 5),
    Sketcher.Constraint("Vertical", 6),
    Sketcher.Constraint("Horizontal", 7),
    Sketcher.Constraint("Vertical", 8),
    Sketcher.Constraint("Horizontal", 9),
    Sketcher.Constraint("Vertical", 10),
    Sketcher.Constraint("Horizontal", 11),
    Sketcher.Constraint("Vertical", 12),
    Sketcher.Constraint("Horizontal", 13),
    Sketcher.Constraint("Vertical", 14),
    Sketcher.Constraint("Horizontal", 15),
    Sketcher.Constraint("Symmetric", 2, 2, 8, 2, -1, 1),
    Sketcher.Constraint("Symmetric", 0, 2, 10, 2, -1, 1),
    Sketcher.Constraint("Symmetric", 6, 2, 12, 2, -1, 1),
    Sketcher.Constraint("Symmetric", 4, 2, 14, 2, -1, 1),
    Sketcher.Constraint("Equal", 3, 5),
    Sketcher.Constraint("Equal", 15, 0),
    Sketcher.Constraint("Equal", 2, 4),
    Sketcher.Constraint("DistanceX", 1, 1, 1, 2, 12.0),
    Sketcher.Constraint("DistanceX", 4, 2, 3, 2, 39.0),
    Sketcher.Constraint("DistanceY", 8, 2, 4, 2, 39.0),
    Sketcher.Constraint("DistanceY", 3, 2, 4, 2, 8.5),
    Sketcher.Constraint("DistanceX", 8, 2, 4, 2, 20.5),
])
pocket9 = body.newObject("PartDesign::Pocket", "Pocket008")
pocket9.Profile = sketch16
pocket9.Type = "ThroughAll"
pocket9.Midplane = True
doc.recompute()

fillet2 = body.newObject("PartDesign::Fillet", "Fillet001")
fillet2.Base = (pocket9, edges_at(pocket9, [
    (3.25, -23.75, 15.75),
    (-23.75, -3.25, 15.75),
    (-3.25, 23.75, 15.75),
    (23.75, 3.25, 15.75),
    (35.75, 15.25, 1.5),
    (35.75, 3.25, 1.5),
    (23.75, 15.25, 1.5),
    (-3.25, 35.75, 1.5),
    (-15.25, 23.75, 1.5),
    (-15.25, 35.75, 1.5),
    (-35.75, -15.25, 1.5),
    (-35.75, -3.25, 1.5),
    (-23.75, -15.25, 1.5),
    (3.25, -35.75, 1.5),
    (15.25, -23.75, 1.5),
    (15.25, -35.75, 1.5),
]))
fillet2.Radius = 2
doc.recompute()

fillet3 = body.newObject("PartDesign::Fillet", "Fillet002")
fillet3.Base = (fillet2, edges_at(fillet2, [
    (-8.25, 46.25, 8),
    (-8.25, 46.25, 18),
    (-18.25, 46.25, 18),
    (-18.25, 46.25, 8),
    (46.25, 7.25, 19),
    (46.25, 19.25, 19),
    (46.25, 19.25, 7),
    (46.25, 7.25, 7),
    (18.25, -46.25, 18),
    (18.25, -46.25, 8),
    (8.25, -46.25, 8),
    (8.25, -46.25, 18),
    (-46.25, -6.25, 18),
    (-46.25, -16.25, 18),
    (-46.25, -16.25, 8),
    (-46.25, -6.25, 8),
]))
fillet3.Radius = 2

sketch17 = body.newObject("Sketcher::SketchObject", "Sketch016")
sketch17.AttachmentSupport = (doc.getObject("XY_Plane"), [""])
sketch17.MapMode = "FlatFace"
sketch17.AttachmentOffset = App.Placement(V(0, 0, 34.5), App.Rotation())
add_polygon(sketch17, [(44.55, -3.75), (44.55, -44.75), (44.75, -44.75), (44.75, -3.75)])
add_polygon(sketch17, [(23.75, -3.75), (23.75, -44.75), (23.95, -44.75), (23.95, -3.75)])
add_polygon(sketch17, [(-44.75, -44.55), (-44.75, -44.75), (-3.75, -44.75), (-3.75, -44.55)])
add_polygon(sketch17, [(-44.75, -23.75), (-44.75, -23.95), (-3.75, -23.95), (-3.75, -23.75)])
add_polygon(sketch17, [(-44.75, 44.75), (-44.75, 3.75), (-44.55, 3.75), (-44.55, 44.75)])
add_polygon(sketch17, [(-23.95, 44.75), (-23.95, 3.75), (-23.75, 3.75), (-23.75, 44.75)])
add_polygon(sketch17, [(3.75, 23.95), (3.75, 23.75), (44.75, 23.75), (44.75, 23.95)])
add_polygon(sketch17, [(3.75, 44.75), (3.75, 44.55), (44.75, 44.55), (44.75, 44.75)])
sketch17.addConstraint([
    Sketcher.Constraint("Vertical", 0),
    Sketcher.Constraint("Horizontal", 1),
    Sketcher.Constraint("Vertical", 2),
    Sketcher.Constraint("Horizontal", 3),
    Sketcher.Constraint("Vertical", 4),
    Sketcher.Constraint("Horizontal", 5),
    Sketcher.Constraint("Vertical", 6),
    Sketcher.Constraint("Horizontal", 7),
    Sketcher.Constraint("Vertical", 8),
    Sketcher.Constraint("Horizontal", 9),
    Sketcher.Constraint("Vertical", 10),
    Sketcher.Constraint("Horizontal", 11),
    Sketcher.Constraint("Vertical", 12),
    Sketcher.Constraint("Horizontal", 13),
    Sketcher.Constraint("Vertical", 14),
    Sketcher.Constraint("Horizontal", 15),
    Sketcher.Constraint("Vertical", 16),
    Sketcher.Constraint("Horizontal", 17),
    Sketcher.Constraint("Vertical", 18),
    Sketcher.Constraint("Horizontal", 19),
    Sketcher.Constraint("Vertical", 20),
    Sketcher.Constraint("Horizontal", 21),
    Sketcher.Constraint("Vertical", 22),
    Sketcher.Constraint("Horizontal", 23),
    Sketcher.Constraint("Vertical", 24),
    Sketcher.Constraint("Horizontal", 25),
    Sketcher.Constraint("Vertical", 26),
    Sketcher.Constraint("Horizontal", 27),
    Sketcher.Constraint("Vertical", 28),
    Sketcher.Constraint("Horizontal", 29),
    Sketcher.Constraint("Vertical", 30),
    Sketcher.Constraint("Horizontal", 31),
    Sketcher.Constraint("Symmetric", 2, 2, 16, 2, -1, 1),
    Sketcher.Constraint("Symmetric", 0, 2, 18, 2, -1, 1),
    Sketcher.Constraint("Symmetric", 6, 2, 20, 2, -1, 1),
    Sketcher.Constraint("Symmetric", 4, 2, 22, 2, -1, 1),
    Sketcher.Constraint("Symmetric", 14, 2, 24, 2, -1, 1),
    Sketcher.Constraint("Symmetric", 12, 2, 26, 2, -1, 1),
    Sketcher.Constraint("Symmetric", 10, 2, 28, 2, -1, 1),
    Sketcher.Constraint("Symmetric", 8, 2, 30, 2, -1, 1),
    Sketcher.Constraint("Symmetric", 1, 2, 8, 2, -2),
    Sketcher.Constraint("Horizontal", 1, 2, 4, 2),
    Sketcher.Constraint("Horizontal", 3, 2, 6, 2),
    Sketcher.Constraint("Vertical", 11, 2, 12, 2),
    Sketcher.Constraint("Vertical", 10, 2, 13, 2),
    Sketcher.Constraint("Equal", 3, 5),
    Sketcher.Constraint("Equal", 31, 0),
    Sketcher.Constraint("Equal", 23, 8),
    Sketcher.Constraint("Equal", 10, 12),
    Sketcher.Constraint("DistanceX", 9, 1, 9, 2, 41.0),
    Sketcher.Constraint("DistanceX", 1, 1, 1, 2, 0.2),
    Sketcher.Constraint("DistanceX", 4, 2, 1, 2, 21.0),
    Sketcher.Constraint("DistanceY", 9, 2, 14, 2, 21.0),
    Sketcher.Constraint("DistanceX", 8, 2, 4, 2, 68.5),
    Sketcher.Constraint("DistanceY", 15, 2, 16, 2, 27.5),
])
pad8 = body.newObject("PartDesign::Pad", "Pad007")
pad8.Profile = sketch17
pad8.Length = 31.5
pad8.Reversed = True

sketch18 = body.newObject("Sketcher::SketchObject", "Sketch017")
sketch18.AttachmentSupport = (doc.getObject("XY_Plane"), [""])
sketch18.MapMode = "FlatFace"
sketch18.AttachmentOffset = App.Placement(V(0, 0, 3), App.Rotation())
add_polygon(sketch18, [(-21, 21), (-21, -21), (21, -21), (21, 21)])
sketch18.addConstraint([
    Sketcher.Constraint("Vertical", 0),
    Sketcher.Constraint("Horizontal", 1),
    Sketcher.Constraint("Vertical", 2),
    Sketcher.Constraint("Horizontal", 3),
    Sketcher.Constraint("Symmetric", 0, 2, 2, 2, -1, 1),
    Sketcher.Constraint("Equal", 3, 0),
    Sketcher.Constraint("DistanceX", 1, 1, 1, 2, 41.5),
])
pad9 = body.newObject("PartDesign::Pad", "Pad008")
pad9.Profile = sketch18
pad9.Length = 31.5

sketch19 = body.newObject("Sketcher::SketchObject", "Sketch018")
sketch19.AttachmentSupport = (doc.getObject("XY_Plane"), [""])
sketch19.MapMode = "FlatFace"
add_polygon(sketch19, [(21, 21), (21, -21), (-21, -21), (-21, 21)])
sketch19.addConstraint([
    Sketcher.Constraint("Vertical", 0),
    Sketcher.Constraint("Horizontal", 1),
    Sketcher.Constraint("Vertical", 2),
    Sketcher.Constraint("Horizontal", 3),
    Sketcher.Constraint("Symmetric", 0, 2, 2, 2, -1, 1),
    Sketcher.Constraint("Equal", 3, 0),
    Sketcher.Constraint("DistanceX", 1, 2, 1, 1, 41.3),
])
pocket10 = body.newObject("PartDesign::Pocket", "Pocket009")
pocket10.Profile = sketch19
pocket10.Type = "ThroughAll"
pocket10.Reversed = True
doc.recompute()

fillet4 = body.newObject("PartDesign::Fillet", "Fillet003")
fillet4.Base = (pocket10, edges_at(pocket10, [
    (20.65, -20.65, 17.25),
    (20.65, 20.65, 17.25),
    (-20.65, 20.65, 17.25),
    (-20.65, -20.65, 17.25),
]))
fillet4.Radius = 5

sketch20 = body.newObject("Sketcher::SketchObject", "Sketch019")
sketch20.AttachmentSupport = (doc.getObject("YZ_Plane"), [""])
sketch20.MapMode = "FlatFace"
sketch20.AttachmentOffset = App.Placement(V(0, 0, -47.75), App.Rotation())
sketch20.addGeometry([
    Part.LineSegment(V(13.7, 25.1, 0), V(24.3, 14.5, 0)),
    Part.ArcOfCircle(Part.Circle(V(22.6, 12.7, 0), V(0, 0, 1), 2.5), math.radians(-135), math.radians(45)),
    Part.LineSegment(V(20.8, 10.9, 0), V(10.2, 21.5, 0)),
    Part.ArcOfCircle(Part.Circle(V(11.9, 23.3, 0), V(0, 0, 1), 2.5), math.radians(45), math.radians(225)),
    Part.LineSegment(V(35.8, 10.9, 0), V(25.2, 21.5, 0)),
    Part.ArcOfCircle(Part.Circle(V(26.9, 23.3, 0), V(0, 0, 1), 2.5), math.radians(45), math.radians(225)),
    Part.LineSegment(V(28.7, 25.1, 0), V(39.3, 14.5, 0)),
    Part.ArcOfCircle(Part.Circle(V(37.6, 12.7, 0), V(0, 0, 1), 2.5), math.radians(-135), math.radians(45)),
], False)
sketch20.addConstraint([
    Sketcher.Constraint("Tangent", 0, 2, 1, 2),
    Sketcher.Constraint("Tangent", 1, 1, 2, 1),
    Sketcher.Constraint("Tangent", 2, 2, 3, 2),
    Sketcher.Constraint("Tangent", 3, 1, 0, 1),
    Sketcher.Constraint("Tangent", 4, 2, 5, 2),
    Sketcher.Constraint("Tangent", 5, 1, 6, 1),
    Sketcher.Constraint("Tangent", 6, 2, 7, 2),
    Sketcher.Constraint("Tangent", 7, 1, 4, 1),
    Sketcher.Constraint("Equal", 1, 3),
    Sketcher.Constraint("Equal", 3, 5),
    Sketcher.Constraint("Equal", 5, 7),
    Sketcher.Constraint("Parallel", 2, 4),
    Sketcher.Constraint("Horizontal", 3, 3, 5, 3),
    Sketcher.Constraint("Horizontal", 1, 3, 7, 3),
    Sketcher.Constraint("Radius", 1, 2.5),
    Sketcher.Constraint("Angle", 0, Q("-45 deg")),
    Sketcher.Constraint("Distance", 0, 15.0),
    Sketcher.Constraint("DistanceX", 3, 3, 5, 3, 15.0),
    Sketcher.Constraint("DistanceX", -1, 1, 1, 3, 22.553301),
    Sketcher.Constraint("DistanceY", -1, 1, 1, 3, 12.696699),
])
pocket11 = body.newObject("PartDesign::Pocket", "Pocket010")
pocket11.Profile = sketch20
pocket11.Length = 10
pocket11.Reversed = True
doc.recompute()

polarpattern = body.newObject("PartDesign::PolarPattern", "PolarPattern")
polarpattern.Originals = [pocket11]
polarpattern.Axis = (doc.getObject("Z_Axis"), [""])
polarpattern.Angle = 360
polarpattern.Occurrences = 4
body.Tip = polarpattern

sketch21 = body.newObject("Sketcher::SketchObject", "Sketch020")
sketch21.AttachmentSupport = (doc.getObject("YZ_Plane"), [""])
sketch21.MapMode = "FlatFace"
sketch21.AttachmentOffset = App.Placement(V(0, 0, -20.75), App.Rotation())
add_polygon(sketch21, [(42, 30), (27, 30), (27, 8), (42, 8)])
sketch21.addConstraint([
    Sketcher.Constraint("Horizontal", 0),
    Sketcher.Constraint("Vertical", 1),
    Sketcher.Constraint("Horizontal", 2),
    Sketcher.Constraint("Vertical", 3),
    Sketcher.Constraint("DistanceX", 0, 2, 0, 1, 15.0),
    Sketcher.Constraint("DistanceY", 1, 2, 1, 1, 21.5),
    Sketcher.Constraint("DistanceY", -1, 1, 1, 2, 8.0),
    Sketcher.Constraint("DistanceX", -1, 1, 0, 2, 26.75),
])
pocket12 = body.newObject("PartDesign::Pocket", "Pocket011")
pocket12.Profile = sketch21
pocket12.Length = 10
doc.recompute()

fillet5 = body.newObject("PartDesign::Fillet", "Fillet004")
fillet5.Base = (pocket12, edges_at(pocket12, [
    (-22.35, 26.75, 29.5),
    (-22.35, 41.75, 29.5),
    (-22.35, 41.75, 8),
    (-22.35, 26.75, 8),
]))
fillet5.Radius = 5
doc.recompute()

polarpattern2 = body.newObject("PartDesign::PolarPattern", "PolarPattern001")
polarpattern2.Originals = [pocket12]
polarpattern2.Axis = (doc.getObject("Z_Axis"), [""])
polarpattern2.Angle = 360
polarpattern2.Occurrences = 4
body.Tip = polarpattern2
doc.recompute()

fillet6 = body.newObject("PartDesign::Fillet", "Fillet005")
fillet6.Base = (polarpattern2, edges_at(polarpattern2, [
    (-26.75, -22.35, 29.5),
    (-41.75, -22.35, 29.5),
    (-41.75, -22.35, 8),
    (-26.75, -22.35, 8),
    (22.35, -26.75, 29.5),
    (22.35, -41.75, 29.5),
    (22.35, -41.75, 8),
    (22.35, -26.75, 8),
    (26.75, 22.35, 29.5),
    (41.75, 22.35, 29.5),
    (41.75, 22.35, 8),
    (26.75, 22.35, 8),
]))
fillet6.Radius = 5

doc.recompute()
